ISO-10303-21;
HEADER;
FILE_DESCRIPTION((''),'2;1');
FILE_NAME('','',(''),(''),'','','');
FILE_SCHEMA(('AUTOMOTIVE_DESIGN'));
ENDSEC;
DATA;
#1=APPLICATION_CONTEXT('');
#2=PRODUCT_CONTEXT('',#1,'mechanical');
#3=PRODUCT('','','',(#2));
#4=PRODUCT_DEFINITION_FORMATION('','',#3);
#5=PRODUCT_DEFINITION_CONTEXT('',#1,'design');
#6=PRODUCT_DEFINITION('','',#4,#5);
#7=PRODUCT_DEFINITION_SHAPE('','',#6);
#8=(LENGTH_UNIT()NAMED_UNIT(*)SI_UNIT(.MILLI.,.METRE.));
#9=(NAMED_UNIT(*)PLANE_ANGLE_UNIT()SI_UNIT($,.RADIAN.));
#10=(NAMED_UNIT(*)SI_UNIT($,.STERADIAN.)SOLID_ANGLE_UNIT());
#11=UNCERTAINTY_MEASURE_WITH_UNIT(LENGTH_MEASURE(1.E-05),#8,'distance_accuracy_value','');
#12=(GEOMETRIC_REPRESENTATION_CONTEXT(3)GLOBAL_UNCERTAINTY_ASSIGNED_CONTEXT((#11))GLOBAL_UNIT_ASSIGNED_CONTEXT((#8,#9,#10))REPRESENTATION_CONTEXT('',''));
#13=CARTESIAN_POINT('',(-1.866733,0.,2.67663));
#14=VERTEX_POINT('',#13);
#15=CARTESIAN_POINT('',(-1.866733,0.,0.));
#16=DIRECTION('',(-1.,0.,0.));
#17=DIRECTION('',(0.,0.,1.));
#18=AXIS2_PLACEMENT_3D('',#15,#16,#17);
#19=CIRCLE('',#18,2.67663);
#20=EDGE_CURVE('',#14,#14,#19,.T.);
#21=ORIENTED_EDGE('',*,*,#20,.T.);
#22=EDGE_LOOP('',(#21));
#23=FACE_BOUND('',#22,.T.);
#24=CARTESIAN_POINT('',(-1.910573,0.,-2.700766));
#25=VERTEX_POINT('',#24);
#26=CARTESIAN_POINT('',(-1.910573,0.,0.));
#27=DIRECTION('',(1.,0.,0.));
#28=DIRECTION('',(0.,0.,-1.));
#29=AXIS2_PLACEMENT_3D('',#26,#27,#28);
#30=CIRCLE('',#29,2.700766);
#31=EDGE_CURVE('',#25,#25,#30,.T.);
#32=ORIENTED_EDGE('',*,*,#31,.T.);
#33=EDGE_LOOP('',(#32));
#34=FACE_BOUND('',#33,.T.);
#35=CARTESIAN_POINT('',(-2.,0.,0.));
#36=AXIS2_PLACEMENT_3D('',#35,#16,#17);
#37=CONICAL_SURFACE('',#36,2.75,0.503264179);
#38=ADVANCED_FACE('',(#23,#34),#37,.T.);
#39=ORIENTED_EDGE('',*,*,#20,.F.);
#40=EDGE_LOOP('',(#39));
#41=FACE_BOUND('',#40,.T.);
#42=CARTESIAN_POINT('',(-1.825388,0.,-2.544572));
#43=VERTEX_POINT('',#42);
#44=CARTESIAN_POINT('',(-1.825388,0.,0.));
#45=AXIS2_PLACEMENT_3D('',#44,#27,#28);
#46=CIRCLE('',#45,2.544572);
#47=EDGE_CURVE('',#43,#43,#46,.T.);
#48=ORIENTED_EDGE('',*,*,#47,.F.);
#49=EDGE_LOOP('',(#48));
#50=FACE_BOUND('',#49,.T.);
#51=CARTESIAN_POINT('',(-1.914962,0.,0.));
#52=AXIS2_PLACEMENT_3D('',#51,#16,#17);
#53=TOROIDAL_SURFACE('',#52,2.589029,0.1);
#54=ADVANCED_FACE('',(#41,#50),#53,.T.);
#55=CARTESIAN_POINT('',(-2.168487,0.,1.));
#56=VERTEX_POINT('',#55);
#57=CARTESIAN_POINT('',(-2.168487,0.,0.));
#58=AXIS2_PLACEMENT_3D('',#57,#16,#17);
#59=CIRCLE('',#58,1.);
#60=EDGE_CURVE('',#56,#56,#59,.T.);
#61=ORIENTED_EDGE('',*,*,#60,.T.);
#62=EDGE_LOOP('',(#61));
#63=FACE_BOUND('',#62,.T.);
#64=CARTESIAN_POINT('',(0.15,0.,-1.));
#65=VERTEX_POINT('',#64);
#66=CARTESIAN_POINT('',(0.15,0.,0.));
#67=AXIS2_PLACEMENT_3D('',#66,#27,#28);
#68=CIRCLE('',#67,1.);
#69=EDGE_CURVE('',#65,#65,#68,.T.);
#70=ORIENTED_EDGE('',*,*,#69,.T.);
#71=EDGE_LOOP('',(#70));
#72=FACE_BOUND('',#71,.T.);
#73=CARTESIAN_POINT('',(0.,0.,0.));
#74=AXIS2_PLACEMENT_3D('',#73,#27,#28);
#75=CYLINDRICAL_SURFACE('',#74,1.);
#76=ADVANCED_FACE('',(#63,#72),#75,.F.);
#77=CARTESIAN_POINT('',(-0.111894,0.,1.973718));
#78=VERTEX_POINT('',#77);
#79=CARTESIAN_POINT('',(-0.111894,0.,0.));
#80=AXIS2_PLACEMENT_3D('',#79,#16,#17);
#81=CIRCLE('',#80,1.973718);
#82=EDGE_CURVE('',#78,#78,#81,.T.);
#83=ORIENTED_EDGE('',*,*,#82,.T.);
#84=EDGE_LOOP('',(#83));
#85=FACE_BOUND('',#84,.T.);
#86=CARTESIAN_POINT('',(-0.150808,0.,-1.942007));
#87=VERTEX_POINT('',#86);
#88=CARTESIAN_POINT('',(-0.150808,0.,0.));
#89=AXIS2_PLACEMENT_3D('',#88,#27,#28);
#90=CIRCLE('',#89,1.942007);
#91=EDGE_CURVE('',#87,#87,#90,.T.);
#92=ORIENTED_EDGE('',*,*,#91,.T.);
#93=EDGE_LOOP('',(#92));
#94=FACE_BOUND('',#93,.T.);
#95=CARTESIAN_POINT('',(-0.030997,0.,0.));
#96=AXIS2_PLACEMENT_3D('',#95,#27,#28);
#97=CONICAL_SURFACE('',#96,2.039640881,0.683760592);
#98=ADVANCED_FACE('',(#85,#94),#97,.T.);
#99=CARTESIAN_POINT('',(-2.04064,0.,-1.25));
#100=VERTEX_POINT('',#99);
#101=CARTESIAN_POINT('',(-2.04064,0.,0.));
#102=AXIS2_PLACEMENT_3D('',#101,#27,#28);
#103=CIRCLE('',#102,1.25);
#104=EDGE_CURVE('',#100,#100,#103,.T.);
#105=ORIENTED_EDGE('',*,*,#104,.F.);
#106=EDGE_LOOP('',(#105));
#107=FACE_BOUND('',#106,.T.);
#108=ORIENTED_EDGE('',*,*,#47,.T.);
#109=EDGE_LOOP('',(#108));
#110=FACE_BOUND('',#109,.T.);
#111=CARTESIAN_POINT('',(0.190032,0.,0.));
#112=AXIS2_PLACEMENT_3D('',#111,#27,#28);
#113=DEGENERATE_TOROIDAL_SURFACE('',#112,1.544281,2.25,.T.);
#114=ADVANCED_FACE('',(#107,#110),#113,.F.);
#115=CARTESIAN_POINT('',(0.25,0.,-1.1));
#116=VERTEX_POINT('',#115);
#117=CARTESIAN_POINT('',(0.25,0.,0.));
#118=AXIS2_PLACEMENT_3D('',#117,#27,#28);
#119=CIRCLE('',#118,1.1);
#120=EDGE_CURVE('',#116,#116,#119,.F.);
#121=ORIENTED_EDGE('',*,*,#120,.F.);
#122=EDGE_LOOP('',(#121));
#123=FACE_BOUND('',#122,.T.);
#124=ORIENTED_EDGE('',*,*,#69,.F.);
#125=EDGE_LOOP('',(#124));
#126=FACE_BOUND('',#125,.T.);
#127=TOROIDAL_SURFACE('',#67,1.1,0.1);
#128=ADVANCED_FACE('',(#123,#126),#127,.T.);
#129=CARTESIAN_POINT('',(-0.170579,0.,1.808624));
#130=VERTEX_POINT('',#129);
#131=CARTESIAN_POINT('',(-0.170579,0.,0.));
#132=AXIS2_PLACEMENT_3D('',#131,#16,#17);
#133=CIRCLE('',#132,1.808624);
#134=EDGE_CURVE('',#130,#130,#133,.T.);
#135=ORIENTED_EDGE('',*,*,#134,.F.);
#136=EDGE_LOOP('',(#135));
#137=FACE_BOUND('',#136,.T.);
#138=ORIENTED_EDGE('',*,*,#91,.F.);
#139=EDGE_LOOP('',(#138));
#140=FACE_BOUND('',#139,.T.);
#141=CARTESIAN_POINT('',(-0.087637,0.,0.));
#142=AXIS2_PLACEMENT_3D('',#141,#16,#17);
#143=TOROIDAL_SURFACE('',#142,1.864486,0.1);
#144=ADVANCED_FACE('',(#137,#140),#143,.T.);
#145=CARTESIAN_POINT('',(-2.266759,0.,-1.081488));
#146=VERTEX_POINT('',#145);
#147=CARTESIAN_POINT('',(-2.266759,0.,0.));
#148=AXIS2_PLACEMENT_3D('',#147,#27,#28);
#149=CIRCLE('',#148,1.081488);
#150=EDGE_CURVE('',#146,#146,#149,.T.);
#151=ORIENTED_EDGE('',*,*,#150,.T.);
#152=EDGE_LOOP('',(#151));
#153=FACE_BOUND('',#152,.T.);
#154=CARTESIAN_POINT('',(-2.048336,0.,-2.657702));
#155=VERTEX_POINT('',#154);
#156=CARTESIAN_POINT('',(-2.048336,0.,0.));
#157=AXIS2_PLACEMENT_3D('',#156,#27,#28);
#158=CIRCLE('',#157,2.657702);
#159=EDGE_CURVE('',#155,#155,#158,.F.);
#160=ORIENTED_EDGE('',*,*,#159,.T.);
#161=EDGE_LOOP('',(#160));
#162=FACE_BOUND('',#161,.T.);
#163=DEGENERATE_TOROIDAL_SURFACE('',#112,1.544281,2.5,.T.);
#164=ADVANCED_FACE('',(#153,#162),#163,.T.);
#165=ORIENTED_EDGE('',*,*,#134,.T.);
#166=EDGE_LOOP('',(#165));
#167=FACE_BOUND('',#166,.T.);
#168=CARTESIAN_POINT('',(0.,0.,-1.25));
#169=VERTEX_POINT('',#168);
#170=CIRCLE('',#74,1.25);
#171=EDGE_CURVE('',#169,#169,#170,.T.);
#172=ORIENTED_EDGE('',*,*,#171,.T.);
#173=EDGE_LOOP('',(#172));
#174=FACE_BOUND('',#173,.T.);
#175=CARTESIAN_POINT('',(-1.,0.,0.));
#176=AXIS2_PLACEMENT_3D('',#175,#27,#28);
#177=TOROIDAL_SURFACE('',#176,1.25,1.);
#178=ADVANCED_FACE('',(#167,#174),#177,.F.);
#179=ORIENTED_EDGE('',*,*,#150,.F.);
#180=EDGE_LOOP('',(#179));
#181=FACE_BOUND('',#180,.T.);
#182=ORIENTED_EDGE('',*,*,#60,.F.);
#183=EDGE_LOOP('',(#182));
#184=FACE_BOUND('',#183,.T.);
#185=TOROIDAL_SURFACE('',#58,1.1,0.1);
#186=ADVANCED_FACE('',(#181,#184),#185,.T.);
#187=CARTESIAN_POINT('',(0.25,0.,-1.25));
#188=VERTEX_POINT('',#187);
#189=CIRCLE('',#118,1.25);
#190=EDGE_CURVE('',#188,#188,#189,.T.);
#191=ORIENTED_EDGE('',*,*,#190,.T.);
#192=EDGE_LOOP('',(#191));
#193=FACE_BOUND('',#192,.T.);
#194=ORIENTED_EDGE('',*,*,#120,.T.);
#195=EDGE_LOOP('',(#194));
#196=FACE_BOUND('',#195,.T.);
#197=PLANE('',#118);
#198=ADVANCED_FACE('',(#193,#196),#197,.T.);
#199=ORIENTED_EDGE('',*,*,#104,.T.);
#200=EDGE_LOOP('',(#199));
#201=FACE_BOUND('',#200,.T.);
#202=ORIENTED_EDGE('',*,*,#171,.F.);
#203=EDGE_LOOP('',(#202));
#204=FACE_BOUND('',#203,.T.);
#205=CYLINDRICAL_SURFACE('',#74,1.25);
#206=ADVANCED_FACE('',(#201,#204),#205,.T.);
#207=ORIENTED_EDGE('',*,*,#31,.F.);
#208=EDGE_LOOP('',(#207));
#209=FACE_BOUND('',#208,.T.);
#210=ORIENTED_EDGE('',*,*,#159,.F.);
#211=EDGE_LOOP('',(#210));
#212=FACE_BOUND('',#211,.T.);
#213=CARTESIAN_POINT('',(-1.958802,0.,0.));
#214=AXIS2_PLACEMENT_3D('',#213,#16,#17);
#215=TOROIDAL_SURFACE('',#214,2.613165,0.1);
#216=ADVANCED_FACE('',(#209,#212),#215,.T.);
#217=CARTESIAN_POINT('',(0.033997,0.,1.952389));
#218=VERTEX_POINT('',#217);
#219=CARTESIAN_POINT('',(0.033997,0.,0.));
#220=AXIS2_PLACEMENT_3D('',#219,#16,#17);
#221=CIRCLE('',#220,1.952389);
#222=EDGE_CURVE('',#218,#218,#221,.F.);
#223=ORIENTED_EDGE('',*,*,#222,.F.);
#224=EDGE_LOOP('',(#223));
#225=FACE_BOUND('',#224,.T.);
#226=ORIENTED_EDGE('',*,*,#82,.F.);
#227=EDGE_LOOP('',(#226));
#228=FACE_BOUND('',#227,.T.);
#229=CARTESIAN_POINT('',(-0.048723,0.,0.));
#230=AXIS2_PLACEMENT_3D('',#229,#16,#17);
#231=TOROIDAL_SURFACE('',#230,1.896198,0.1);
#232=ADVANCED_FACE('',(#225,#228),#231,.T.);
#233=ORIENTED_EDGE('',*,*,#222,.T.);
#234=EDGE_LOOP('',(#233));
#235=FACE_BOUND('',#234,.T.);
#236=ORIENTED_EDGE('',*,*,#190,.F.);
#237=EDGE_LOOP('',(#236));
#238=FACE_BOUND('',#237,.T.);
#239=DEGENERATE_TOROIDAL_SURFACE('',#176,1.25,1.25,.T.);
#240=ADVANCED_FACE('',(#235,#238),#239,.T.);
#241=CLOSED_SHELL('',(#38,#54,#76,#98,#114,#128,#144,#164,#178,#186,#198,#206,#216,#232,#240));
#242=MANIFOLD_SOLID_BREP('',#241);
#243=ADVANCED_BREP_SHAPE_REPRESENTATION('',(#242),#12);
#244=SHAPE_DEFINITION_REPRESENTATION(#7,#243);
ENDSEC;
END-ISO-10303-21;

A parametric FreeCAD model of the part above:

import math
import FreeCAD as App
import Part
import Sketcher
from FreeCAD import Vector


def edges_at(feature, points):
    """Names of the edges that pass closest to the given points."""
    edges = feature.Shape.Edges
    near = lambda p: min(range(len(edges)), key=lambda i: edges[i].distToShape(Part.Vertex(*p))[0])
    return sorted({f"Edge{near(p) + 1}" for p in points})

doc = App.newDocument("Part")
params = doc.addObject("Spreadsheet::Sheet", "Params")
for row, (alias, value) in enumerate([
    ("sketch1_radius", "1 mm"),
    ("sketch1_radius2", "2.5 mm"),
    ("sketch1_radius3", "2.25 mm"),
    ("sketch1_width", "2.5 mm"),
    ("sketch1_height", "0.25 mm"),
    ("revolution_angle", "360 deg"),
    ("fillet_radius", "0.1 mm"),
], start=1):
    params.set(f"A{row}", alias)
    params.set(f"B{row}", "=" + value)
    params.setAlias(f"B{row}", alias)

body = doc.addObject("PartDesign::Body", "Body")

sketch1 = body.newObject("Sketcher::SketchObject", "Sketch")
sketch1.AttachmentSupport = (doc.getObject("XY_Plane"), [""])
sketch1.MapMode = "FlatFace"
sketch1.addGeometry(Part.ArcOfCircle(Part.Circle(Vector(-1, 1.25, 0), Vector(0, 0, 1), 1), math.radians(0), math.radians(39)), False)
sketch1.addGeometry(Part.LineSegment(Vector(0, 1.25, 0), Vector(-2.04, 1.25, 0)), False)
sketch1.addGeometry(Part.ArcOfCircle(Part.Circle(Vector(0.19, 1.54, 0), Vector(0, 0, 1), 2.25), math.radians(151), math.radians(188)), False)
sketch1.addGeometry(Part.LineSegment(Vector(-1.78, 2.63, 0), Vector(-2, 2.75, 0)), False)
sketch1.addGeometry(Part.ArcOfCircle(Part.Circle(Vector(0.19, 1.54, 0), Vector(0, 0, 1), 2.5), math.radians(151), math.radians(193)), False)
sketch1.addGeometry(Part.LineSegment(Vector(-2.25, 1, 0), Vector(0.25, 1, 0)), False)
sketch1.addGeometry(Part.LineSegment(Vector(0.25, 1, 0), Vector(0.25, 1.25, 0)), False)
sketch1.addGeometry(Part.ArcOfCircle(Part.Circle(Vector(-1, 1.25, 0), Vector(0, 0, 1), 1.25), math.radians(0), math.radians(39)), False)
sketch1.addGeometry(Part.LineSegment(Vector(-0.03, 2.04, 0), Vector(-0.22, 1.88, 0)), False)
sketch1.addConstraint(Sketcher.Constraint("Coincident", 0, 1, 1, 1))
sketch1.addConstraint(Sketcher.Constraint("Coincident", 1, 2, 2, 2))
sketch1.addConstraint(Sketcher.Constraint("Coincident", 2, 1, 3, 1))
sketch1.addConstraint(Sketcher.Constraint("Coincident", 3, 2, 4, 1))
sketch1.addConstraint(Sketcher.Constraint("Coincident", 4, 2, 5, 1))
sketch1.addConstraint(Sketcher.Constraint("Coincident", 5, 2, 6, 1))
sketch1.addConstraint(Sketcher.Constraint("Tangent", 6, 2, 7, 1))
sketch1.addConstraint(Sketcher.Constraint("Coincident", 7, 2, 8, 1))
sketch1.addConstraint(Sketcher.Constraint("Coincident", 8, 2, 0, 2))
sketch1.addConstraint(Sketcher.Constraint("Horizontal", 1))
sketch1.addConstraint(Sketcher.Constraint("Horizontal", 5))
sketch1.addConstraint(Sketcher.Constraint("Vertical", 6))
sketch1.addConstraint(Sketcher.Constraint("Coincident", 4, 3, 2, 3))
sketch1.addConstraint(Sketcher.Constraint("Coincident", 7, 3, 0, 3))
sketch1.addConstraint(Sketcher.Constraint("PointOnObject", 0, 1, -2))
sketch1.addConstraint(Sketcher.Constraint("Horizontal", 7, 3, 0, 1))
sketch1.addConstraint(Sketcher.Constraint("Equal", 3, 8))
sketch1.addConstraint(Sketcher.Constraint("Radius", 0, 1.0))
sketch1.addConstraint(Sketcher.Constraint("Radius", 4, 2.5))
sketch1.addConstraint(Sketcher.Constraint("Radius", 2, 2.25))
sketch1.addConstraint(Sketcher.Constraint("DistanceX", 5, 1, 5, 2, 2.5))
sketch1.addConstraint(Sketcher.Constraint("DistanceX", 3, 2, -1, 1, 2.0))
sketch1.addConstraint(Sketcher.Constraint("DistanceY", -1, 1, 4, 2, 1.0))
sketch1.addConstraint(Sketcher.Constraint("DistanceY", 6, 1, 6, 2, 0.25))
sketch1.addConstraint(Sketcher.Constraint("DistanceY", 1, 2, 3, 2, 1.5))
sketch1.addConstraint(Sketcher.Constraint("DistanceX", 8, 2, 7, 2, 0.193801))
sketch1.addConstraint(Sketcher.Constraint("DistanceY", -1, 1, 2, 1, 2.629428))
sketch1.addConstraint(Sketcher.Constraint("DistanceY", -1, 1, 7, 2, 2.039641))
sketch1.setExpression("Constraints[17]", "Params.sketch1_radius")
sketch1.setExpression("Constraints[18]", "Params.sketch1_radius2")
sketch1.setExpression("Constraints[19]", "Params.sketch1_radius3")
sketch1.setExpression("Constraints[20]", "Params.sketch1_width")
sketch1.setExpression("Constraints[23]", "Params.sketch1_height")
revolution = body.newObject("PartDesign::Revolution", "Revolution")
revolution.Profile = sketch1
revolution.ReferenceAxis = (sketch1, ["H_Axis"])
revolution.setExpression("Angle", "Params.revolution_angle")
doc.recompute()

fillet = body.newObject("PartDesign::Fillet", "Fillet")
fillet.Base = (revolution, edges_at(revolution, [
    (-2, 0, 2.75),
    (-1.781, 0, 2.629),
    (-0.225, 0, 1.882),
    (-0.031, 0, 2.04),
    (0.25, 0, 1),
    (-2.25, 0, 1),
]))
fillet.setExpression("Radius", "Params.fillet_radius")

doc.recompute()
